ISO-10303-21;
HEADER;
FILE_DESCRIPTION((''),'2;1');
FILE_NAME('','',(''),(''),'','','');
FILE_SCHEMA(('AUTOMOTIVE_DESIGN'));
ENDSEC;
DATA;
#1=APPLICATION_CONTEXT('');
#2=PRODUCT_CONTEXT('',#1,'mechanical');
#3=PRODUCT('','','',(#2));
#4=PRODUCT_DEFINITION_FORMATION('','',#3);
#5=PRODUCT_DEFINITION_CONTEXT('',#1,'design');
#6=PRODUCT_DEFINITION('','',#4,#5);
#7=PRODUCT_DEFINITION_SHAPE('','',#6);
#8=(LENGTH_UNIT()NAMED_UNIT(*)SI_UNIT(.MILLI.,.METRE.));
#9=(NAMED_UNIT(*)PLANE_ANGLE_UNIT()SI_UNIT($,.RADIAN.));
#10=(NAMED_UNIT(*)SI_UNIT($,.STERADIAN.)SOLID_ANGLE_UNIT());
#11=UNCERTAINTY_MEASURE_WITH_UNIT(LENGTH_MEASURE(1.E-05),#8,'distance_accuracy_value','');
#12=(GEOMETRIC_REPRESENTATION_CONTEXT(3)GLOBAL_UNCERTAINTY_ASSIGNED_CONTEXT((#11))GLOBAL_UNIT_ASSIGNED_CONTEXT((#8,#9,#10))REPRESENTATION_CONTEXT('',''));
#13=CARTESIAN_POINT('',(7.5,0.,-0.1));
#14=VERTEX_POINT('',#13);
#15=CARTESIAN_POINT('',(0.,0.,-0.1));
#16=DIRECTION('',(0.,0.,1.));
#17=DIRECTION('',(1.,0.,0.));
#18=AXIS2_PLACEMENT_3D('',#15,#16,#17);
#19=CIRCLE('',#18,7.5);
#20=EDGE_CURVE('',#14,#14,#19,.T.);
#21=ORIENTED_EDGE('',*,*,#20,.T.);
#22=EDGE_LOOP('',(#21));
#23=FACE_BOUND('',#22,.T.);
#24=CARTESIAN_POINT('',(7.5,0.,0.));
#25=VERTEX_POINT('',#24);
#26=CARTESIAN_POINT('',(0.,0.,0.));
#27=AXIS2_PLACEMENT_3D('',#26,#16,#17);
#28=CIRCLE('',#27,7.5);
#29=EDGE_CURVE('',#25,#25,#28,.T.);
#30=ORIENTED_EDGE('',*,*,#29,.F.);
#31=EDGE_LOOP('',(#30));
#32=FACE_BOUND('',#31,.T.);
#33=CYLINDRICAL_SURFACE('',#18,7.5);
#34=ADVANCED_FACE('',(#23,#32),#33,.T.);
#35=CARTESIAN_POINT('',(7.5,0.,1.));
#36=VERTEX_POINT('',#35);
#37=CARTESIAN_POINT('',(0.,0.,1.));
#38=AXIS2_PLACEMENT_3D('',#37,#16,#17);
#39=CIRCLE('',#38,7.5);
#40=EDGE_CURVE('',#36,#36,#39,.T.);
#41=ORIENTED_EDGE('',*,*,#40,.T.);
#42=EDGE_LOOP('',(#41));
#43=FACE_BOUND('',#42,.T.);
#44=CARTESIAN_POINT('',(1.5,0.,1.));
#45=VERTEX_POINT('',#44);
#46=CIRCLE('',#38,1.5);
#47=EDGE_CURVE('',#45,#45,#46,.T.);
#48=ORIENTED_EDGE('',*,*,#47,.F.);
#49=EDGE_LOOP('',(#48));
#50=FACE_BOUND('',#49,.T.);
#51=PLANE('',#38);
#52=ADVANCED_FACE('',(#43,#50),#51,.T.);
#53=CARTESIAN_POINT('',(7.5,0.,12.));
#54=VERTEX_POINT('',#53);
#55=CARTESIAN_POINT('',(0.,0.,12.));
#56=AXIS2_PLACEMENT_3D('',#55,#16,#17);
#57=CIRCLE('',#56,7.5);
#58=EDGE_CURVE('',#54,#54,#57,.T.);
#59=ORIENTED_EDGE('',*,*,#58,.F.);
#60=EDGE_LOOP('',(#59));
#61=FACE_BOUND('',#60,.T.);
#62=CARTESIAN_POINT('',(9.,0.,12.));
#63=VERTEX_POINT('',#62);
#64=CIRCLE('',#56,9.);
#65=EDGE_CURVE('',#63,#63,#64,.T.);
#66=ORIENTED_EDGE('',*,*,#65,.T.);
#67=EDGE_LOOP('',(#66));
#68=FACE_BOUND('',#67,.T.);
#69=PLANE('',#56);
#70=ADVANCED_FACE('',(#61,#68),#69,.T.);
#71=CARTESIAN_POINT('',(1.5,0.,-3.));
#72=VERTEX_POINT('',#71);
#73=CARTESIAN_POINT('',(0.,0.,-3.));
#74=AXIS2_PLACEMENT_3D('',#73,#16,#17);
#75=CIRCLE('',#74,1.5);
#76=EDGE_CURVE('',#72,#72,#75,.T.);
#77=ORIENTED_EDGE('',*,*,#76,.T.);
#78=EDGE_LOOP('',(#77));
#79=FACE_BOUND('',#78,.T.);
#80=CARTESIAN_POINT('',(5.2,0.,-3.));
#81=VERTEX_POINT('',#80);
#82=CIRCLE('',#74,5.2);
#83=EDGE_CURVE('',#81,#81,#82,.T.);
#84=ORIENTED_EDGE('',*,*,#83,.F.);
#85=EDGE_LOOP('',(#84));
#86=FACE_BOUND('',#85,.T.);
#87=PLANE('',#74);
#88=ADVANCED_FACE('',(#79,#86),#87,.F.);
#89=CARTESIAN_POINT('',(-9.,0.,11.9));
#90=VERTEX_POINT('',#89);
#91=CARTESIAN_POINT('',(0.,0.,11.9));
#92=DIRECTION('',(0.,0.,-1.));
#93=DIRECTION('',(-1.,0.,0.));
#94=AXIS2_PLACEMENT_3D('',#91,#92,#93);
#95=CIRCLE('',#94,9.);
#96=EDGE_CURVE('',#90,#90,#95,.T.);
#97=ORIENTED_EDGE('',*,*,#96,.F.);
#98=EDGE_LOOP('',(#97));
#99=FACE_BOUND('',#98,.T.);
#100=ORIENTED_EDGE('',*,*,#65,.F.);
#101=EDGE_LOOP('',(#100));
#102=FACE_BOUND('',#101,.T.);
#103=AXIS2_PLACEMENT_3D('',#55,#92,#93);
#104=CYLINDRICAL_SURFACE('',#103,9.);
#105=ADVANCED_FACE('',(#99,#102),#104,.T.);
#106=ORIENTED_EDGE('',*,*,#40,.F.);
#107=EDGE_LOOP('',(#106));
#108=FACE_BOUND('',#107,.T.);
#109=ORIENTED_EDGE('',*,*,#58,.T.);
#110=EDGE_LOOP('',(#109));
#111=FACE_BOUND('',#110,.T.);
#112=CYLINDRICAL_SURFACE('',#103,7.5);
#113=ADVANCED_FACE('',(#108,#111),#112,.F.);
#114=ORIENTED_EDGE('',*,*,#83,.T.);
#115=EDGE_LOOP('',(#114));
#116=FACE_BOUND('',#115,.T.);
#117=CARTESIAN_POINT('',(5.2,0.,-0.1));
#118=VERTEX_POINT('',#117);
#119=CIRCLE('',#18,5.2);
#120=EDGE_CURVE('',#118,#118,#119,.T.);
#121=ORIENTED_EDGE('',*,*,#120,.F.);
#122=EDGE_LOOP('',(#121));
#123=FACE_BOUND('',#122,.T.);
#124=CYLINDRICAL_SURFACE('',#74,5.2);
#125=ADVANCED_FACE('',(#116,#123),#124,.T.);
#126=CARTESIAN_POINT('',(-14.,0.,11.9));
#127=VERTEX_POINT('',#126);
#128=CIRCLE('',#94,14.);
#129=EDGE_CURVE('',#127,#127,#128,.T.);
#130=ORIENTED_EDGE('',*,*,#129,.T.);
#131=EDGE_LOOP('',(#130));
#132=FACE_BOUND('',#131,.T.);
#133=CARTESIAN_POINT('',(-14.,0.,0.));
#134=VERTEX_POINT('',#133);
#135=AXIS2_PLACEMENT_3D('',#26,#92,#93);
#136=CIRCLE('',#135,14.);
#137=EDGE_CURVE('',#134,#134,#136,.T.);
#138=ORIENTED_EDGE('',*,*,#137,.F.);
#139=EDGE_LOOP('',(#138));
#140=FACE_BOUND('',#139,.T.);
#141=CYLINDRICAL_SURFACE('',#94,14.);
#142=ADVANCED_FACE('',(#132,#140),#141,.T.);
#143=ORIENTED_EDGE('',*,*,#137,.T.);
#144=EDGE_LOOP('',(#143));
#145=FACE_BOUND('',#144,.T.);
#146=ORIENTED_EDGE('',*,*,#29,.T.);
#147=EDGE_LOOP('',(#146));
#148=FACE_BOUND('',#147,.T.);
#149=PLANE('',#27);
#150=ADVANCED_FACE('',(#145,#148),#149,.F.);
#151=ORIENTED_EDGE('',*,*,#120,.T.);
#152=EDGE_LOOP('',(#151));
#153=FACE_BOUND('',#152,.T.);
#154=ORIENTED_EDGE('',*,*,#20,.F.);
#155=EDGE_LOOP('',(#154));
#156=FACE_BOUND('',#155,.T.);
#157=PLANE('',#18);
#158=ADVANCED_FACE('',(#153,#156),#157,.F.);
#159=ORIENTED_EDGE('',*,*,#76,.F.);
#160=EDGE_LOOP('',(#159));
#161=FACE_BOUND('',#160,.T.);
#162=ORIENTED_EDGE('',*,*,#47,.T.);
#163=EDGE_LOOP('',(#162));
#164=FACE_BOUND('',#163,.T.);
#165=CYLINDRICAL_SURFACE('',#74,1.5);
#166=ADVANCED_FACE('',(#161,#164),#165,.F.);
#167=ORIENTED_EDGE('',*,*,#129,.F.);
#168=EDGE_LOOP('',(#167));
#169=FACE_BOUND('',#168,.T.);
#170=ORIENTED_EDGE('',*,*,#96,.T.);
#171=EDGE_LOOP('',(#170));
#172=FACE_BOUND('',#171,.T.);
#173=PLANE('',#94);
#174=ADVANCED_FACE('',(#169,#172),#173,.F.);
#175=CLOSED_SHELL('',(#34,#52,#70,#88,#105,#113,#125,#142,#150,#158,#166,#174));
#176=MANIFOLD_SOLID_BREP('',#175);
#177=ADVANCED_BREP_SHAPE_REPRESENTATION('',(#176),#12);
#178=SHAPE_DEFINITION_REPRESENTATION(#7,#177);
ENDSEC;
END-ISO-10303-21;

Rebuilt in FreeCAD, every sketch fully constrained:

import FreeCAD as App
import Part
import Sketcher
Q = App.Units.Quantity

doc = App.newDocument("Part")
body = doc.addObject("PartDesign::Body", "Body")

# Sketch on XY plane
sketch1 = body.newObject("Sketcher::SketchObject", "Sketch")
sketch1.AttachmentSupport = (doc.getObject("XY_Plane"), [""])
sketch1.MapMode = "FlatFace"
sketch1.addGeometry(Part.Circle(App.Vector(0, 0, 0), App.Vector(0, 0, 1), 9), False)
sketch1.addGeometry(Part.Circle(App.Vector(0, 0, 0), App.Vector(0, 0, 1), 7.5), False)
sketch1.addConstraint(Sketcher.Constraint("Coincident", 0, 3, -1, 1))
sketch1.addConstraint(Sketcher.Constraint("Coincident", 1, 3, -1, 1))
sketch1.addConstraint(Sketcher.Constraint("Diameter", 0, Q("18 mm")))
sketch1.addConstraint(Sketcher.Constraint("Diameter", 1, Q("15 mm")))
pad1 = body.newObject("PartDesign::Pad", "Pad")
pad1.Profile = sketch1
pad1.Length = 12

# Sketch on XY plane
sketch2 = body.newObject("Sketcher::SketchObject", "Sketch001")
sketch2.AttachmentSupport = (doc.getObject("XY_Plane"), [""])
sketch2.MapMode = "FlatFace"
sketch2.addGeometry(Part.Circle(App.Vector(0, 0, 0), App.Vector(0, 0, 1), 7.5), False)
sketch2.addConstraint(Sketcher.Constraint("Coincident", 0, 3, -1, 1))
sketch2.addConstraint(Sketcher.Constraint("Diameter", 0, Q("15 mm")))
pad2 = body.newObject("PartDesign::Pad", "Pad001")
pad2.Profile = sketch2
pad2.Type = "TwoLengths"
pad2.Length = 1
pad2.Length2 = 0.1

# Sketch on XY plane
sketch3 = body.newObject("Sketcher::SketchObject", "Sketch002")
sketch3.AttachmentSupport = (doc.getObject("XY_Plane"), [""])
sketch3.MapMode = "FlatFace"
sketch3.addGeometry(Part.Circle(App.Vector(0, 0, 0), App.Vector(0, 0, 1), 5.2), False)
sketch3.addGeometry(Part.Circle(App.Vector(0, 0, 0), App.Vector(0, 0, 1), 1.5), False)
sketch3.addConstraint(Sketcher.Constraint("Coincident", 0, 3, -1, 1))
sketch3.addConstraint(Sketcher.Constraint("Coincident", 1, 3, -1, 1))
sketch3.addConstraint(Sketcher.Constraint("Diameter", 1, Q("3 mm")))
sketch3.addConstraint(Sketcher.Constraint("Diameter", 0, Q("10.4 mm")))
pad3 = body.newObject("PartDesign::Pad", "Pad002")
pad3.Profile = sketch3
pad3.Length = 3
pad3.Reversed = True

# Sketch on XY plane
sketch4 = body.newObject("Sketcher::SketchObject", "Sketch003")
sketch4.AttachmentSupport = (doc.getObject("XY_Plane"), [""])
sketch4.MapMode = "FlatFace"
sketch4.addGeometry(Part.Circle(App.Vector(0, 0, 0), App.Vector(0, 0, 1), 14), False)
sketch4.addGeometry(Part.Circle(App.Vector(0, 0, 0), App.Vector(0, 0, 1), 9), False)
sketch4.addConstraint(Sketcher.Constraint("Coincident", 0, 3, -1, 1))
sketch4.addConstraint(Sketcher.Constraint("Coincident", 1, 3, -1, 1))
sketch4.addConstraint(Sketcher.Constraint("Diameter", 0, Q("28 mm")))
sketch4.addConstraint(Sketcher.Constraint("Diameter", 1, Q("18 mm")))
pad4 = body.newObject("PartDesign::Pad", "Pad003")
pad4.Profile = sketch4
pad4.Length = 11.9

# Sketch on XY plane
sketch5 = body.newObject("Sketcher::SketchObject", "Sketch004")
sketch5.AttachmentSupport = (doc.getObject("XY_Plane"), [""])
sketch5.MapMode = "FlatFace"
sketch5.AttachmentOffset = App.Placement(App.Vector(0, 0, 12), App.Rotation())
sketch5.addGeometry(Part.Circle(App.Vector(0, 0, 0), App.Vector(0, 0, 1), 1.5), False)
sketch5.addConstraint(Sketcher.Constraint("Coincident", 0, 3, -1, 1))
sketch5.addConstraint(Sketcher.Constraint("Diameter", 0, Q("3 mm")))
pocket1 = body.newObject("PartDesign::Pocket", "Pocket")
pocket1.Profile = sketch5
pocket1.Length = 15

doc.recompute()
